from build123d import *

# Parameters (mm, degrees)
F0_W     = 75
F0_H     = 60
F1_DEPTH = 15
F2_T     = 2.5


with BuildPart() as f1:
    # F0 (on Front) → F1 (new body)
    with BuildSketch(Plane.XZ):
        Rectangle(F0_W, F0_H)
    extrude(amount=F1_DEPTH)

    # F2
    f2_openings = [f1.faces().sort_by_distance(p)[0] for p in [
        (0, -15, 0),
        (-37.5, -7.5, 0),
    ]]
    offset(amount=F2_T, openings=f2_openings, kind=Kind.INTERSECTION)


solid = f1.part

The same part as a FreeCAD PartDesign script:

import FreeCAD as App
import Part
import Sketcher


def faces_at(feature, points):
    """Names of the faces that lie closest to the given points."""
    faces = feature.Shape.Faces
    near = lambda p: min(range(len(faces)), key=lambda i: faces[i].distToShape(Part.Vertex(*p))[0])
    return sorted({f"Face{near(p) + 1}" for p in points})

doc = App.newDocument("Part")
body = doc.addObject("PartDesign::Body", "Body")

sketch1 = body.newObject("Sketcher::SketchObject", "Sketch")
sketch1.AttachmentSupport = (doc.getObject("XZ_Plane"), [""])
sketch1.MapMode = "FlatFace"
sketch1.addGeometry([
    Part.LineSegment(App.Vector(-38, 30, 0), App.Vector(-38, -30, 0)),
    Part.LineSegment(App.Vector(-38, -30, 0), App.Vector(38, -30, 0)),
    Part.LineSegment(App.Vector(38, -30, 0), App.Vector(38, 30, 0)),
    Part.LineSegment(App.Vector(38, 30, 0), App.Vector(-38, 30, 0)),
], False)
sketch1.addConstraint([
    Sketcher.Constraint("Coincident", 0, 2, 1, 1),
    Sketcher.Constraint("Coincident", 1, 2, 2, 1),
    Sketcher.Constraint("Coincident", 2, 2, 3, 1),
    Sketcher.Constraint("Coincident", 3, 2, 0, 1),
    Sketcher.Constraint("Vertical", 0),
    Sketcher.Constraint("Horizontal", 1),
    Sketcher.Constraint("Vertical", 2),
    Sketcher.Constraint("Horizontal", 3),
    Sketcher.Constraint("Symmetric", 0, 2, 2, 2, -1, 1),
    Sketcher.Constraint("DistanceX", 1, 1, 1, 2, 75.0),
    Sketcher.Constraint("DistanceY", 0, 2, 0, 1, 60.0),
])
pad1 = body.newObject("PartDesign::Pad", "Pad")
pad1.Profile = sketch1
pad1.Length = 15
doc.recompute()

thickness = body.newObject("PartDesign::Thickness", "Thickness")
thickness.Base = (pad1, faces_at(pad1, [(0, -15, 0), (-37.5, -7.5, 0)]))
thickness.Value = 2.5
thickness.Reversed = False
thickness.Join = "Intersection"

doc.recompute()
